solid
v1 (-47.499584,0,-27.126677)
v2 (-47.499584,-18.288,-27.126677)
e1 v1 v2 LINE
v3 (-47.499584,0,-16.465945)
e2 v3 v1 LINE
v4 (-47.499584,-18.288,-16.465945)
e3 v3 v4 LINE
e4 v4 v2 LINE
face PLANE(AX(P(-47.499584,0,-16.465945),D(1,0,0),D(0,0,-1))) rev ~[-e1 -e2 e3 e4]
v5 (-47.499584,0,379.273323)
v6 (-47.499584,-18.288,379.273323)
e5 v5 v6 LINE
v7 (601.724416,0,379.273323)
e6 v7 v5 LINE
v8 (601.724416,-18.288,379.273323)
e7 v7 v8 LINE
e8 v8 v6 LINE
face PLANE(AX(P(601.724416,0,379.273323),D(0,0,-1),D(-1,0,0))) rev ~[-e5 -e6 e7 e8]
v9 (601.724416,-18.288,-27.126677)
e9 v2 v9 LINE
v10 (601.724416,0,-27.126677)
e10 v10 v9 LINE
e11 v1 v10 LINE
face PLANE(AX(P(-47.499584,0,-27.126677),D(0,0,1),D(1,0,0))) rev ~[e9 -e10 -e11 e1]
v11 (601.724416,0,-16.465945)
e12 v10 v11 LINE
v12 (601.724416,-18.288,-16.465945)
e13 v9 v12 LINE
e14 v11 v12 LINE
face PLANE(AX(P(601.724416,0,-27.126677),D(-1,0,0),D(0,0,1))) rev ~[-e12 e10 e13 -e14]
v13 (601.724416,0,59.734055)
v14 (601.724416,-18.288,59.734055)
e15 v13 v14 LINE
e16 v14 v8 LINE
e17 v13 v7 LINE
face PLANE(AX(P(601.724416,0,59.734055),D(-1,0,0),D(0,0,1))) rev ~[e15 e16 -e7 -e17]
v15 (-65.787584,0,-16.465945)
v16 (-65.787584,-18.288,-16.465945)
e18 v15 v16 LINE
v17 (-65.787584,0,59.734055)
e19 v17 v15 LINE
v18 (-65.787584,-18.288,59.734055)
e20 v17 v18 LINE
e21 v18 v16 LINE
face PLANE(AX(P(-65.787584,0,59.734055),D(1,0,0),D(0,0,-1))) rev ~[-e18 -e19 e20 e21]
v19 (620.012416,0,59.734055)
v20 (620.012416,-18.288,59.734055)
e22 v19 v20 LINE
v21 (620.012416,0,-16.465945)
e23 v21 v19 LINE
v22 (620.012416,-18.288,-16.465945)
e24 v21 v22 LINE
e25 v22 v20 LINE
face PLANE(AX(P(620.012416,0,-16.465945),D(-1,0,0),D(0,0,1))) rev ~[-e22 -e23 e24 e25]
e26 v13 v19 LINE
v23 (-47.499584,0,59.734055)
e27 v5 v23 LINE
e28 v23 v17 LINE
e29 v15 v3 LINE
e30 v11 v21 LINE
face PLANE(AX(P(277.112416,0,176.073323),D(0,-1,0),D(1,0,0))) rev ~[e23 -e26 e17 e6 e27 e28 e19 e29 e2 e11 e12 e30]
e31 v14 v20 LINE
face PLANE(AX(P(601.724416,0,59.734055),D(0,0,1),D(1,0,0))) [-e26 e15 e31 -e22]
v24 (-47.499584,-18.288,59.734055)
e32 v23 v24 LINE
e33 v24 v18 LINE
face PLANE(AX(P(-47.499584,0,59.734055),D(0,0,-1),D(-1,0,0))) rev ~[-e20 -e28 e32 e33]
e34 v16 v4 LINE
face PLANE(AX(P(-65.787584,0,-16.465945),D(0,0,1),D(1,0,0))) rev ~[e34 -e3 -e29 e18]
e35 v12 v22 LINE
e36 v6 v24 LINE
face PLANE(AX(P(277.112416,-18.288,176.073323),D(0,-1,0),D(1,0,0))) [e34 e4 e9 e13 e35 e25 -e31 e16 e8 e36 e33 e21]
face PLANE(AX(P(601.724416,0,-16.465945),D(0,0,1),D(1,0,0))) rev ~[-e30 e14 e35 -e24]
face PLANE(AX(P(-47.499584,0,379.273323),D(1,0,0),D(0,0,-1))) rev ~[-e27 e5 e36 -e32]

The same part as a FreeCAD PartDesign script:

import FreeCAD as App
import Part
import Sketcher
from FreeCAD import Vector
Q = App.Units.Quantity

doc = App.newDocument("Part")
body = doc.addObject("PartDesign::Body", "Body")

sketch1 = body.newObject("Sketcher::SketchObject", "Sketch")
sketch1.AttachmentSupport = (doc.getObject("XZ_Plane"), [""])
sketch1.MapMode = "FlatFace"
sketch1.addGeometry([
    Part.LineSegment(Vector(602, 379, 0), Vector(-47, 379, 0)),
    Part.LineSegment(Vector(-47, 379, 0), Vector(-47, 60, 0)),
    Part.LineSegment(Vector(-47, 60, 0), Vector(-66, 60, 0)),
    Part.LineSegment(Vector(-66, 60, 0), Vector(-66, -16, 0)),
    Part.LineSegment(Vector(-66, -16, 0), Vector(-47, -16, 0)),
    Part.LineSegment(Vector(-47, -16, 0), Vector(-47, -27, 0)),
    Part.LineSegment(Vector(-47, -27, 0), Vector(602, -27, 0)),
    Part.LineSegment(Vector(602, -27, 0), Vector(602, -16, 0)),
    Part.LineSegment(Vector(602, -16, 0), Vector(620, -16, 0)),
    Part.LineSegment(Vector(620, -16, 0), Vector(620, 60, 0)),
    Part.LineSegment(Vector(620, 60, 0), Vector(602, 60, 0)),
    Part.LineSegment(Vector(602, 60, 0), Vector(602, 379, 0)),
], False)
sketch1.addConstraint([
    Sketcher.Constraint("Coincident", 0, 2, 1, 1),
    Sketcher.Constraint("Coincident", 1, 2, 2, 1),
    Sketcher.Constraint("Coincident", 2, 2, 3, 1),
    Sketcher.Constraint("Coincident", 3, 2, 4, 1),
    Sketcher.Constraint("Coincident", 4, 2, 5, 1),
    Sketcher.Constraint("Coincident", 5, 2, 6, 1),
    Sketcher.Constraint("Coincident", 6, 2, 7, 1),
    Sketcher.Constraint("Coincident", 7, 2, 8, 1),
    Sketcher.Constraint("Coincident", 8, 2, 9, 1),
    Sketcher.Constraint("Coincident", 9, 2, 10, 1),
    Sketcher.Constraint("Coincident", 10, 2, 11, 1),
    Sketcher.Constraint("Coincident", 11, 2, 0, 1),
    Sketcher.Constraint("Horizontal", 0),
    Sketcher.Constraint("Vertical", 1),
    Sketcher.Constraint("Horizontal", 2),
    Sketcher.Constraint("Vertical", 3),
    Sketcher.Constraint("Horizontal", 4),
    Sketcher.Constraint("Vertical", 5),
    Sketcher.Constraint("Horizontal", 6),
    Sketcher.Constraint("Vertical", 7),
    Sketcher.Constraint("Horizontal", 8),
    Sketcher.Constraint("Vertical", 9),
    Sketcher.Constraint("Horizontal", 10),
    Sketcher.Constraint("Vertical", 11),
    Sketcher.Constraint("Horizontal", 4, 2, 7, 2),
    Sketcher.Constraint("Horizontal", 2, 2, 9, 2),
    Sketcher.Constraint("Vertical", 1, 2, 4, 2),
    Sketcher.Constraint("Vertical", 7, 2, 10, 2),
    Sketcher.Constraint("Equal", 4, 8),
    Sketcher.Constraint("DistanceY", 3, 2, 3, 1, Q("3 in")),
    Sketcher.Constraint("DistanceY", 5, 2, 0, 2, Q("16 in")),
    Sketcher.Constraint("DistanceX", 0, 2, 0, 1, Q("25.56 in")),
    Sketcher.Constraint("DistanceX", 2, 2, 2, 1, Q("0.72 in")),
    Sketcher.Constraint("DistanceY", 1, 2, 1, 1, Q("319.539268 mm")),
    Sketcher.Constraint("DistanceX", 0, 2, -1, 1, Q("47.499584 mm")),
    Sketcher.Constraint("DistanceY", -1, 1, 0, 2, Q("379.273323 mm")),
])
pad1 = body.newObject("PartDesign::Pad", "Pad")
pad1.Profile = sketch1
pad1.Length = Q("0.72 in")

doc.recompute()
